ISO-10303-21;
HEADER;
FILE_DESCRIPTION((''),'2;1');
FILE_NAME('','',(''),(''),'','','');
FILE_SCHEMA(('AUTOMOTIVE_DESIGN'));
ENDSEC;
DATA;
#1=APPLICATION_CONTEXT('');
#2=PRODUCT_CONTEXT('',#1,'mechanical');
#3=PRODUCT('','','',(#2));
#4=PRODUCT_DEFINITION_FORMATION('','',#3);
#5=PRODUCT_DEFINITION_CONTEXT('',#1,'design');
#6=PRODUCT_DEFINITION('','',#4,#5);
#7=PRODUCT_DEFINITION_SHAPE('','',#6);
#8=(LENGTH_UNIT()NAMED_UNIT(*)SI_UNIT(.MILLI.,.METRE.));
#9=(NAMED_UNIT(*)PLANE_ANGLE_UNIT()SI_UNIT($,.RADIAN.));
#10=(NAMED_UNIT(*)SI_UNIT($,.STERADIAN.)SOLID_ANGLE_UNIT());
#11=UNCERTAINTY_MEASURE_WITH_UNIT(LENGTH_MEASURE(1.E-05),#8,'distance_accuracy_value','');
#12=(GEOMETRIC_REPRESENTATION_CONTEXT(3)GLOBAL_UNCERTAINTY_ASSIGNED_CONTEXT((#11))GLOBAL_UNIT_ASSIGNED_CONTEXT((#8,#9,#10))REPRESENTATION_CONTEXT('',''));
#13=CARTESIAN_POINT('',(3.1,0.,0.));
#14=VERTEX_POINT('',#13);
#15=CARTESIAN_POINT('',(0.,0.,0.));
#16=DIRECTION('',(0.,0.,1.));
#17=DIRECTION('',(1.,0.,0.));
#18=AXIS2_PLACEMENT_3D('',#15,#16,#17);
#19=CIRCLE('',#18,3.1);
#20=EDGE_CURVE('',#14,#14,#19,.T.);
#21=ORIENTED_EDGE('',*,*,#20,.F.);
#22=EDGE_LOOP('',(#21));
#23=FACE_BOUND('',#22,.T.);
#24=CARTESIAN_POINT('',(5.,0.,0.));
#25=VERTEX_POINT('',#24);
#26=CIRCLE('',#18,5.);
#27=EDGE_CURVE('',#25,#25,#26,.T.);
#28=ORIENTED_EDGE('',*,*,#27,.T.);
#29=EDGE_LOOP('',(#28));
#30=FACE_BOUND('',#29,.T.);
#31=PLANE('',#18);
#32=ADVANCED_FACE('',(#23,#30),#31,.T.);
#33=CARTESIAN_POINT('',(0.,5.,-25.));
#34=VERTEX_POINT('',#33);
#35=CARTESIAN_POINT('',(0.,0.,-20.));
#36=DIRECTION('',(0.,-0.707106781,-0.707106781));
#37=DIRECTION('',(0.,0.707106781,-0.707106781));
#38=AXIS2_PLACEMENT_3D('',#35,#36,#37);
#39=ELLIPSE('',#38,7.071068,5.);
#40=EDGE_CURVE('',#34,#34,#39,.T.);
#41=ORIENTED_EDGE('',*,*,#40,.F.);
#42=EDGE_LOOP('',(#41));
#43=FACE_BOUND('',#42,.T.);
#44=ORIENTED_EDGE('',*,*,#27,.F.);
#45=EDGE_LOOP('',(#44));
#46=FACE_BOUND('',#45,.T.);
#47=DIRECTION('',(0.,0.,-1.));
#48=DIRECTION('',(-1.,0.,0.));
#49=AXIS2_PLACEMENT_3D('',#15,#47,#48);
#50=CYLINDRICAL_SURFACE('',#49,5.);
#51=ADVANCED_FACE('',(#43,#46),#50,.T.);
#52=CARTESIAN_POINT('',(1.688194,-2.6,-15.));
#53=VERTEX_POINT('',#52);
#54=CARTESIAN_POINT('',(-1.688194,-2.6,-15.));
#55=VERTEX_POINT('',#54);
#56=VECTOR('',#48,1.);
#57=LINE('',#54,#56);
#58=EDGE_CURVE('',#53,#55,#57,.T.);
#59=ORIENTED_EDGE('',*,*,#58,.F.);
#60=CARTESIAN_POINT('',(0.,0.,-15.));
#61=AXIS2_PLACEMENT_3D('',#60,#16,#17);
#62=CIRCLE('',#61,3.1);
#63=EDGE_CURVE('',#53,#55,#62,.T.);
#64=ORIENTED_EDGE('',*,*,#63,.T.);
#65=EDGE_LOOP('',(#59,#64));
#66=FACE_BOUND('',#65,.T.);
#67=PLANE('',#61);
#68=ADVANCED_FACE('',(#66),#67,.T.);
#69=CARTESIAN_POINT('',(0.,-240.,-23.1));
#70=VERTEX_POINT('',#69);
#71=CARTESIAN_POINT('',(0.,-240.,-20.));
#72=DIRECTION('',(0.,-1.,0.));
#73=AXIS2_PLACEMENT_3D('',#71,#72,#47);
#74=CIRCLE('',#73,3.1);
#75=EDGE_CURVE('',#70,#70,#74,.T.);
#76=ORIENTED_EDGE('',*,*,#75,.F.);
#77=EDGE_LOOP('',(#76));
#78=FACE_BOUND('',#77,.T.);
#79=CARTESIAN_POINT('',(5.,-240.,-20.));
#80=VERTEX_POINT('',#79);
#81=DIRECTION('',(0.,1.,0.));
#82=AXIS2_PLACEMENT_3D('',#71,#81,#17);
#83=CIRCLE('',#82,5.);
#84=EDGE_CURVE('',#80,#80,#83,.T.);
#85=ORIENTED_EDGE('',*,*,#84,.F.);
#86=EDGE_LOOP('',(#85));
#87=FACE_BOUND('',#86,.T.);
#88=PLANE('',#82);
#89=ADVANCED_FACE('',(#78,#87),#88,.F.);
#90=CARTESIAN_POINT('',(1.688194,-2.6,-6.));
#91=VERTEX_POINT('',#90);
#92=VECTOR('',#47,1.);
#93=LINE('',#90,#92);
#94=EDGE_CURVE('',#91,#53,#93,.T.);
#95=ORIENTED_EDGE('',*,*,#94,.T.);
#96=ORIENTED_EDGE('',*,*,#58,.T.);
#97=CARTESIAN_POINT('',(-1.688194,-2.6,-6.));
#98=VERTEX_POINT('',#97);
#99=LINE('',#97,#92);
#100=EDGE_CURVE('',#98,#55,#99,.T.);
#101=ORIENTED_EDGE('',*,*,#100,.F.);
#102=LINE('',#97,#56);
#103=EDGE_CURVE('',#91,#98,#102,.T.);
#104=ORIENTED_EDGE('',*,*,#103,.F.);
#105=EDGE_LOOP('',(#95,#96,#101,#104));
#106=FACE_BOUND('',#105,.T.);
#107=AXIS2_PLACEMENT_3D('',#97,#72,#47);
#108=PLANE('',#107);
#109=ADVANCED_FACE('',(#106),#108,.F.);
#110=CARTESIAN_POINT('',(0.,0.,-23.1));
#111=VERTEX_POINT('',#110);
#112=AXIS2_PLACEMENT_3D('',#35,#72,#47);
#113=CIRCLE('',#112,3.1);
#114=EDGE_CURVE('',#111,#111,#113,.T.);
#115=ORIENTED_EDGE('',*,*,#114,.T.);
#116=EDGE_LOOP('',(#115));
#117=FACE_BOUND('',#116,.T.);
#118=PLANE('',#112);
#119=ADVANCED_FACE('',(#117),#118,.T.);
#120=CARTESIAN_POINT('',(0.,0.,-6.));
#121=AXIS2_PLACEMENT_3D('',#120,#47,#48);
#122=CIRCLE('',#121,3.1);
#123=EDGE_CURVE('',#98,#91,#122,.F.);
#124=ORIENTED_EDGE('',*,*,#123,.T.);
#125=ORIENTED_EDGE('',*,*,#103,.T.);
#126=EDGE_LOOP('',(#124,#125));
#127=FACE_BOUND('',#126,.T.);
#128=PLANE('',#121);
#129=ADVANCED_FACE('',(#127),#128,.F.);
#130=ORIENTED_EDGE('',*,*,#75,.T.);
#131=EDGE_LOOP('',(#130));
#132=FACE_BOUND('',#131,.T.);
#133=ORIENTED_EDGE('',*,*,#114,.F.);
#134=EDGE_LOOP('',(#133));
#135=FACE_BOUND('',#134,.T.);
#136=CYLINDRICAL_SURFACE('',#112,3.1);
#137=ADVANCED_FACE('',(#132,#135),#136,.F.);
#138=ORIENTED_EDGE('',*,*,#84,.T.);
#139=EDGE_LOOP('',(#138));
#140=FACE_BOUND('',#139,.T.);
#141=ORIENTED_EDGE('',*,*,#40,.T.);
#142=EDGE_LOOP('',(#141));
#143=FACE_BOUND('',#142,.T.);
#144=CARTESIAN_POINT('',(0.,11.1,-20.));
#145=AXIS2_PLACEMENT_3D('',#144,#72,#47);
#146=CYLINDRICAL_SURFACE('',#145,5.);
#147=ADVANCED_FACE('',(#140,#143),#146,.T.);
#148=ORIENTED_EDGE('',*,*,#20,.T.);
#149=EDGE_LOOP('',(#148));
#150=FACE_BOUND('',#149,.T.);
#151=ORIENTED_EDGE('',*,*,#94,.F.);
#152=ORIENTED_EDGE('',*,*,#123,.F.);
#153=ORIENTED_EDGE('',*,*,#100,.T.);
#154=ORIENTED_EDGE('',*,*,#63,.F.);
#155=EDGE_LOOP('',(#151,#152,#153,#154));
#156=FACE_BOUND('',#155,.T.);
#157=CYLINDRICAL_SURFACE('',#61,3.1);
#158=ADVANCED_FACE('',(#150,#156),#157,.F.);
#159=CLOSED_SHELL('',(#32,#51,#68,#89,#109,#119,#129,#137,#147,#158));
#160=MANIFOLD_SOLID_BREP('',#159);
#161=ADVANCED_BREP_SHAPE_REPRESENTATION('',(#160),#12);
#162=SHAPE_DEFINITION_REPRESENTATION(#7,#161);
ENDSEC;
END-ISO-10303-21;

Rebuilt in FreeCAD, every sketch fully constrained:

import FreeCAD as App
import Part
import Sketcher

V = App.Vector
Q = App.Units.Quantity


def add_polygon(sketch, points):
    """Adds a closed chain of lines whose ends are joined by coincident constraints."""
    first, n = sketch.GeometryCount, len(points)
    for a, b in zip(points, points[1:] + points[:1]):
        sketch.addGeometry(Part.LineSegment(App.Vector(*a, 0), App.Vector(*b, 0)), False)
    for i in range(n):
        sketch.addConstraint(Sketcher.Constraint("Coincident", first + i, 2, first + (i + 1) % n, 1))

doc = App.newDocument("Part")
body = doc.addObject("PartDesign::Body", "Body")

sketch1 = body.newObject("Sketcher::SketchObject", "Sketch")
sketch1.AttachmentSupport = (doc.getObject("XY_Plane"), [""])
sketch1.MapMode = "FlatFace"
sketch1.addGeometry(Part.Circle(V(0, 0, 0), V(0, 0, 1), 5), False)
sketch1.addConstraint(Sketcher.Constraint("Coincident", 0, 3, -1, 1))
sketch1.addConstraint(Sketcher.Constraint("Diameter", 0, Q("10 mm")))

sketch2 = body.newObject("Sketcher::SketchObject", "Sketch001")
sketch2.AttachmentSupport = (doc.getObject("YZ_Plane"), [""])
sketch2.MapMode = "FlatFace"
sketch2.addGeometry(Part.LineSegment(V(0, 0, 0), V(0, -20, 0)), False)
sketch2.addGeometry(Part.LineSegment(V(0, -20, 0), V(-240, -20, 0)), False)
sketch2.addConstraint(Sketcher.Constraint("Coincident", 0, 2, 1, 1))
sketch2.addConstraint(Sketcher.Constraint("Vertical", 0))
sketch2.addConstraint(Sketcher.Constraint("Horizontal", 1))
sketch2.addConstraint(Sketcher.Constraint("Coincident", 0, 1, -1, 1))
sketch2.addConstraint(Sketcher.Constraint("DistanceX", 1, 2, 1, 1, Q("240 mm")))
sketch2.addConstraint(Sketcher.Constraint("DistanceY", 0, 2, 0, 1, Q("20 mm")))
doc.recompute()

additivepipe = body.newObject("PartDesign::AdditivePipe", "AdditivePipe")
additivepipe.Profile = sketch1
additivepipe.Spine = (sketch2, ["Edge1", "Edge2"])
additivepipe.Transition = "Right corner"

sketch3 = body.newObject("Sketcher::SketchObject", "Sketch002")
sketch3.AttachmentSupport = (doc.getObject("XY_Plane"), [""])
sketch3.MapMode = "FlatFace"
sketch3.addGeometry(Part.Circle(V(0, 0, 0), V(0, 0, 1), 3.1), False)
sketch3.addConstraint(Sketcher.Constraint("Coincident", 0, 3, -1, 1))
sketch3.addConstraint(Sketcher.Constraint("Diameter", 0, Q("6.2 mm")))
pocket1 = body.newObject("PartDesign::Pocket", "Pocket")
pocket1.Profile = sketch3
pocket1.Length = 15

sketch4 = body.newObject("Sketcher::SketchObject", "Sketch003")
sketch4.AttachmentSupport = (doc.getObject("XY_Plane"), [""])
sketch4.MapMode = "FlatFace"
sketch4.AttachmentOffset = App.Placement(V(0, 0, -15), App.Rotation())
add_polygon(sketch4, [(-1.7, -2.6), (-1.7, -3.6), (1.7, -3.6), (1.7, -2.6)])
sketch4.addConstraint(Sketcher.Constraint("Vertical", 0))
sketch4.addConstraint(Sketcher.Constraint("Horizontal", 1))
sketch4.addConstraint(Sketcher.Constraint("Vertical", 2))
sketch4.addConstraint(Sketcher.Constraint("Horizontal", 3))
sketch4.addConstraint(Sketcher.Constraint("DistanceY", 0, 2, 0, 1, Q("1 mm")))
sketch4.addConstraint(Sketcher.Constraint("DistanceY", 0, 2, -1, 1, Q("3.6 mm")))
sketch4.addConstraint(Sketcher.Constraint("DistanceX", 1, 1, 1, 2, Q("3.376389 mm")))
sketch4.addConstraint(Sketcher.Constraint("DistanceX", 0, 2, -1, 1, Q("1.688194 mm")))
pad1 = body.newObject("PartDesign::Pad", "Pad")
pad1.Profile = sketch4
pad1.Length = 9

sketch5 = body.newObject("Sketcher::SketchObject", "Sketch004")
sketch5.AttachmentSupport = (doc.getObject("XZ_Plane"), [""])
sketch5.MapMode = "FlatFace"
sketch5.AttachmentOffset = App.Placement(V(0, 0, 240), App.Rotation())
sketch5.addGeometry(Part.Circle(V(0, -20, 0), V(0, 0, 1), 3.1), False)
sketch5.addConstraint(Sketcher.Constraint("PointOnObject", 0, 3, -2))
sketch5.addConstraint(Sketcher.Constraint("Diameter", 0, Q("6.2 mm")))
sketch5.addConstraint(Sketcher.Constraint("DistanceY", 0, 3, -1, 1, Q("20 mm")))
pocket2 = body.newObject("PartDesign::Pocket", "Pocket001")
pocket2.Profile = sketch5
pocket2.Length = 240

doc.recompute()
